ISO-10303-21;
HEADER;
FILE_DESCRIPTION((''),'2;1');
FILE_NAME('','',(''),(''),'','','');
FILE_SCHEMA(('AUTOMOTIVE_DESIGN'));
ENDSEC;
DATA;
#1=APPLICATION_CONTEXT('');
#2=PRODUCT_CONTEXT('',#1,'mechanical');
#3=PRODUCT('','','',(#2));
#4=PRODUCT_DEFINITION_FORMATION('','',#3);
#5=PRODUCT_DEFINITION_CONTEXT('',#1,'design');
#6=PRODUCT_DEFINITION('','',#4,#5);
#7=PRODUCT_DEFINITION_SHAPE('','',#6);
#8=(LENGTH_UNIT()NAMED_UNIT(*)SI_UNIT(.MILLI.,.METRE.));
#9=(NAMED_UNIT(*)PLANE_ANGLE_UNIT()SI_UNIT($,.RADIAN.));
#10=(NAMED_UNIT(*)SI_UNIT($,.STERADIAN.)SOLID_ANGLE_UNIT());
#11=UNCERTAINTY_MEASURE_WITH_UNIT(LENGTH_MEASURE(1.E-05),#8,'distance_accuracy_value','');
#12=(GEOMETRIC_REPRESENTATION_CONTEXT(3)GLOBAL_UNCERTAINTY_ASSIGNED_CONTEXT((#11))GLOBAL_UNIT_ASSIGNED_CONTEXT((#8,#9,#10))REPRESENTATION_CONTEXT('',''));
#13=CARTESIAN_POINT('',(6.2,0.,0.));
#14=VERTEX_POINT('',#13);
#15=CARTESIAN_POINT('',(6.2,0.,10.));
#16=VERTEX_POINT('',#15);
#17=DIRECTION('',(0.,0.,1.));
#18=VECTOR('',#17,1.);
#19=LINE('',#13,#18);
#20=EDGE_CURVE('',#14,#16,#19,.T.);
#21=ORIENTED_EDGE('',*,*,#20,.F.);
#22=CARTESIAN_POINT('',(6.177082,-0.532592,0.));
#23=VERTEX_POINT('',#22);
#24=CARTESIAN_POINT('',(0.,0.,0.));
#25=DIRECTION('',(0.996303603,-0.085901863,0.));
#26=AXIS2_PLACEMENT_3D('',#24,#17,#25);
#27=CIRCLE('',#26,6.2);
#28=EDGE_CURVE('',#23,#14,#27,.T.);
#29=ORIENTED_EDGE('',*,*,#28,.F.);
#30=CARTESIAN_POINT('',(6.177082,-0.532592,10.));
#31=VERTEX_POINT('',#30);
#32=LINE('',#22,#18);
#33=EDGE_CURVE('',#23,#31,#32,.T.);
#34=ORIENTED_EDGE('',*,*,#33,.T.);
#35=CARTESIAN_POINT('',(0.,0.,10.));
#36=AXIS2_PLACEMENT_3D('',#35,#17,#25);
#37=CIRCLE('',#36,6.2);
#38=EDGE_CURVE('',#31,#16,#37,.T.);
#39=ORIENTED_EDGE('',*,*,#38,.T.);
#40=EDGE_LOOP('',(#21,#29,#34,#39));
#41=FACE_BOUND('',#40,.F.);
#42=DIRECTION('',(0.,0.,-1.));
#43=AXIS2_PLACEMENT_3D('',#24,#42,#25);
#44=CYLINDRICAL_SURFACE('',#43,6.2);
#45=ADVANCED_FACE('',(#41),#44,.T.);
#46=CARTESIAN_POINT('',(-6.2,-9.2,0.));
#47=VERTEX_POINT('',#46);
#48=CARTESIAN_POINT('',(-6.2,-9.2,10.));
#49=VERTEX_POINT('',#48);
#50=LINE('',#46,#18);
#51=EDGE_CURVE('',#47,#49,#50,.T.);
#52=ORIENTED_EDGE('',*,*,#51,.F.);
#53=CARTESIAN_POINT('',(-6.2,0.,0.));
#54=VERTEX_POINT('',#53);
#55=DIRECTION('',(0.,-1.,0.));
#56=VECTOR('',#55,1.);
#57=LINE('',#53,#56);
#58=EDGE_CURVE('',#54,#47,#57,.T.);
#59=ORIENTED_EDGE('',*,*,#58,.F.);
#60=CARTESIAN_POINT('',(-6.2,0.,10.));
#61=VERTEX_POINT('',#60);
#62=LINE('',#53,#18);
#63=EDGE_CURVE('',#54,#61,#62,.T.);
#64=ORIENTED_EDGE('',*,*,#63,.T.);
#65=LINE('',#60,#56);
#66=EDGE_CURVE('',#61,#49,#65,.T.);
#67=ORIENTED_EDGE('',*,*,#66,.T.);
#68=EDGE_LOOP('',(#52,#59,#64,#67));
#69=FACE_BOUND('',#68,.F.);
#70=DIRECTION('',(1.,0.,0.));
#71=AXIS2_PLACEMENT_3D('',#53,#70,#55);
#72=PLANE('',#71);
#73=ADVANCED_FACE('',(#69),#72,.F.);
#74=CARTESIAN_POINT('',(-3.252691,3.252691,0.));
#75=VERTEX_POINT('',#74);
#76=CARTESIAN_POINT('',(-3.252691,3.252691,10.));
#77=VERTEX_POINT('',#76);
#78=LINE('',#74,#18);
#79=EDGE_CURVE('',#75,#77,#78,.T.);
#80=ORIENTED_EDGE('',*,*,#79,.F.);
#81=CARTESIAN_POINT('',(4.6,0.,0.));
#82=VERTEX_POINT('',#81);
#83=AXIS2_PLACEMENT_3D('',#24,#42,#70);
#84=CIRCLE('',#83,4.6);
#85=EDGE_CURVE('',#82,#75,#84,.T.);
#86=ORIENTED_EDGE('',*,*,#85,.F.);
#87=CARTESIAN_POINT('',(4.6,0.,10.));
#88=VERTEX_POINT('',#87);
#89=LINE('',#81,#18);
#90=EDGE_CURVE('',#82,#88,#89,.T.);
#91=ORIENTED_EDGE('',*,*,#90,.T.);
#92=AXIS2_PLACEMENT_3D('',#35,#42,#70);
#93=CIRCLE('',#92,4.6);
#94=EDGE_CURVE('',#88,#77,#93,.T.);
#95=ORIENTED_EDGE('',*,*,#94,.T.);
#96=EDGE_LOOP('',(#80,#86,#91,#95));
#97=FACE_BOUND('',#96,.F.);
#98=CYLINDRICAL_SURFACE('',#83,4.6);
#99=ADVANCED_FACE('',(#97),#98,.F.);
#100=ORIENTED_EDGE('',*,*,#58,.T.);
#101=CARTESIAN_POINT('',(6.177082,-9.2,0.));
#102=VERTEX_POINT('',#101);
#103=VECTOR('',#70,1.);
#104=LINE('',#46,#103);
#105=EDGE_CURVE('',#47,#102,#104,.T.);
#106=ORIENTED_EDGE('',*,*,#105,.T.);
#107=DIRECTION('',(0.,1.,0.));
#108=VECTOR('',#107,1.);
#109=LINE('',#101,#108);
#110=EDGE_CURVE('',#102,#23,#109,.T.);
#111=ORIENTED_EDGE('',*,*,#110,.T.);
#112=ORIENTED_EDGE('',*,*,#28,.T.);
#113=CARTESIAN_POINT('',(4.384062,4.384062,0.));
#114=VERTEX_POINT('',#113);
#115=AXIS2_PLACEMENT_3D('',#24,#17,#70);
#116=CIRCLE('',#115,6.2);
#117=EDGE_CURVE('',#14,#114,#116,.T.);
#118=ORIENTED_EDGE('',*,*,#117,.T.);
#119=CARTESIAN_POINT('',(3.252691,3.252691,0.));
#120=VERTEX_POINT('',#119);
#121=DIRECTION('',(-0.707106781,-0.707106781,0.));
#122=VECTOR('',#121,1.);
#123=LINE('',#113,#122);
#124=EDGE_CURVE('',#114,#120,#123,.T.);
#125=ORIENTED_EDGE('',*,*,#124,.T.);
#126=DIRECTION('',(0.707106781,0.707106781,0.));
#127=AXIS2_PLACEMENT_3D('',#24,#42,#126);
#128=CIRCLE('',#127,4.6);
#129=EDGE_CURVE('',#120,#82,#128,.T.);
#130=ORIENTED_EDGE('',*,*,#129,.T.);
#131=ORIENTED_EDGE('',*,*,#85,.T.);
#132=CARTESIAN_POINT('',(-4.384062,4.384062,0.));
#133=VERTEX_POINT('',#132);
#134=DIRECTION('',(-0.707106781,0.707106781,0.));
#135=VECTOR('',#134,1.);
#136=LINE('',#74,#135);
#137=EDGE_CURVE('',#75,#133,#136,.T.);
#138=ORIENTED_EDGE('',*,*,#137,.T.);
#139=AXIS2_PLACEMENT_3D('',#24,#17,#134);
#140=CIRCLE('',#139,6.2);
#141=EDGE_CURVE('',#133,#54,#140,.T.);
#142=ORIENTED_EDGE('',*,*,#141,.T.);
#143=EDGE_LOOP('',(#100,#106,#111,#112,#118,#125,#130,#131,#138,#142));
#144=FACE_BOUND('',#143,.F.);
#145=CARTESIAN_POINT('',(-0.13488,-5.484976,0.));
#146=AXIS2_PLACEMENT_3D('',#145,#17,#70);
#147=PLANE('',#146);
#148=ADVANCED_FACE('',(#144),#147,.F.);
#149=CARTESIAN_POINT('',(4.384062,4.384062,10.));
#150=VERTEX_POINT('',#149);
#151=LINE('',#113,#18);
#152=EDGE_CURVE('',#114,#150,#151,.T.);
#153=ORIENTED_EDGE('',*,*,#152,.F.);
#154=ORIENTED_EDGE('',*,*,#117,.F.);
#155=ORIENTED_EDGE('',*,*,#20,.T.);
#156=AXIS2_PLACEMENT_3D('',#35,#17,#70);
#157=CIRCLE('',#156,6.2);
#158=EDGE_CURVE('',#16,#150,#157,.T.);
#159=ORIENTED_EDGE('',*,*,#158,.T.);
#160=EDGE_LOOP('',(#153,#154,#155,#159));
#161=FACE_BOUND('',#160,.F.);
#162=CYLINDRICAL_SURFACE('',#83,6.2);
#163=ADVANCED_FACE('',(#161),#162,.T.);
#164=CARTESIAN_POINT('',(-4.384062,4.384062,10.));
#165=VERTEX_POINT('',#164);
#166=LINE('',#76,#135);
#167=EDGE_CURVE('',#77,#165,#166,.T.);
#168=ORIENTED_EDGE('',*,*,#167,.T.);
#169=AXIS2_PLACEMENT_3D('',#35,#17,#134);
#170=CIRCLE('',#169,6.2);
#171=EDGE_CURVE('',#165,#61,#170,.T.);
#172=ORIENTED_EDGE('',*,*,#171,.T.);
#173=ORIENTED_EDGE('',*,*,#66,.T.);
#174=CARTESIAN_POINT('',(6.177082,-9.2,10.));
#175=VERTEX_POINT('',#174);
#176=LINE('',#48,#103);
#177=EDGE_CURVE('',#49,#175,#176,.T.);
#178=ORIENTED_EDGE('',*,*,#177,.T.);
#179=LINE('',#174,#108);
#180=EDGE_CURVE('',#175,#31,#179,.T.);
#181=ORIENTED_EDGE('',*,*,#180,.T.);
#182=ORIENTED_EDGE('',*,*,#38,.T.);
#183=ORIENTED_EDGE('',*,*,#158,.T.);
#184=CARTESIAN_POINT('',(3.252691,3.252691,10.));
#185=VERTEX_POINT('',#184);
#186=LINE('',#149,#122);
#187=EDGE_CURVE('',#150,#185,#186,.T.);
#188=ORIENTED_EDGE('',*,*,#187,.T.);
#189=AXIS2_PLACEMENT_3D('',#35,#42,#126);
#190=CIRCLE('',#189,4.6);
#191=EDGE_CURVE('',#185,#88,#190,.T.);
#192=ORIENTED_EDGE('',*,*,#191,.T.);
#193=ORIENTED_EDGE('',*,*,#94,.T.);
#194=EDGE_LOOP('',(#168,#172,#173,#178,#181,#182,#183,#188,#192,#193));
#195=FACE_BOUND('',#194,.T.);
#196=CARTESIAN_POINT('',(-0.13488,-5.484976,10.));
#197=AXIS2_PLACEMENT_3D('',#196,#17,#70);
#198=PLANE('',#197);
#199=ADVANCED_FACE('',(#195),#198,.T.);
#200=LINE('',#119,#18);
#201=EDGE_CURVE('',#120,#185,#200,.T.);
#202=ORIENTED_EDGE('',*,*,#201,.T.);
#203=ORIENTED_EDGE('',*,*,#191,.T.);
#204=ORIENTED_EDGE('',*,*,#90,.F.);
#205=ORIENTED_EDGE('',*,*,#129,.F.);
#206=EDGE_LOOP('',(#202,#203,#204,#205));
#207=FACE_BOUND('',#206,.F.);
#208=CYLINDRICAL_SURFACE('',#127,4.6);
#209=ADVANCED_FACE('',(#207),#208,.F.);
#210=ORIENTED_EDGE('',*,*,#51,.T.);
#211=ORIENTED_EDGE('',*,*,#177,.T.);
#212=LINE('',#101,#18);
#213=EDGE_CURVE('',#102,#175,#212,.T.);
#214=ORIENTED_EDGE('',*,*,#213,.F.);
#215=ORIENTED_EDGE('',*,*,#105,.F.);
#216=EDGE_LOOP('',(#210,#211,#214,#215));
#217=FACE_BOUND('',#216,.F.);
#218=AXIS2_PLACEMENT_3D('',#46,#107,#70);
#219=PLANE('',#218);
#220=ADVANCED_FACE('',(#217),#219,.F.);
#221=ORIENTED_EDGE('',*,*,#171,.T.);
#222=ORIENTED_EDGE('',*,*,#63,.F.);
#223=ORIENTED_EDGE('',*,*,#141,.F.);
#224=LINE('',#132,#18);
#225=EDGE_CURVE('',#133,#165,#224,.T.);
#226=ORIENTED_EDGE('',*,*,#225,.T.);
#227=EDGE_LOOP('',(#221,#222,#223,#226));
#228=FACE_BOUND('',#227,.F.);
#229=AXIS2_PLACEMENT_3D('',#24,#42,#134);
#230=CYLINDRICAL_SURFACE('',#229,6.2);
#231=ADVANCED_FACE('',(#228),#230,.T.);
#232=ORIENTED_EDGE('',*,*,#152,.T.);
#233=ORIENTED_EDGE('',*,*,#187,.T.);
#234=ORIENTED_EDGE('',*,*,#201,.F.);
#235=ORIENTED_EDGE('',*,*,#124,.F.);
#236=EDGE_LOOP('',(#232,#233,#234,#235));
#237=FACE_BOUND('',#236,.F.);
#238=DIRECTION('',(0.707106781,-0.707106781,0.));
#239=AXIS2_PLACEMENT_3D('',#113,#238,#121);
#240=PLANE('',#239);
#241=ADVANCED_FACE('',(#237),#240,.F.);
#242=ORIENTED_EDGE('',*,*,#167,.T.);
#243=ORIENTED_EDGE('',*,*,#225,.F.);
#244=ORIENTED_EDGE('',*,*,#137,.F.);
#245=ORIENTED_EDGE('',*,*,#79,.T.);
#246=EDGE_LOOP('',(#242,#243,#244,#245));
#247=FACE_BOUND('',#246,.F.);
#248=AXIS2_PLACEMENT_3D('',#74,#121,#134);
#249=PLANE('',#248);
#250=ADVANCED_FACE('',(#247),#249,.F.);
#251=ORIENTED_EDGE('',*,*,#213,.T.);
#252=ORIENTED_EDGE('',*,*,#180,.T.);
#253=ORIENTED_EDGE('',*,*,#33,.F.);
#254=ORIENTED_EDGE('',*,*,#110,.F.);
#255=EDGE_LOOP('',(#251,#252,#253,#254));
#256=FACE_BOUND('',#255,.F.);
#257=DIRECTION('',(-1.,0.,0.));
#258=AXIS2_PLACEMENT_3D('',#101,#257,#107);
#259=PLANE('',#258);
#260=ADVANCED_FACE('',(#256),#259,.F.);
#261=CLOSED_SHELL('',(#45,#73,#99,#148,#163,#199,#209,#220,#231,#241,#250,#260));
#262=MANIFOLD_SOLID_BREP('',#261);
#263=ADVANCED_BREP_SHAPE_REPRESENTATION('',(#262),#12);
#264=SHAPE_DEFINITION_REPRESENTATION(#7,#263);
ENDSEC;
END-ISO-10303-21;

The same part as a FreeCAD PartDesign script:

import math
import FreeCAD as App
import Part
import Sketcher
from FreeCAD import Vector

doc = App.newDocument("Part")
body = doc.addObject("PartDesign::Body", "Body")

# Sketch on XY plane
sketch1 = body.newObject("Sketcher::SketchObject", "Sketch")
sketch1.AttachmentSupport = (doc.getObject("XY_Plane"), [""])
sketch1.MapMode = "FlatFace"
sketch1.addGeometry([
    Part.LineSegment(Vector(-6.2, 0, 0), Vector(-6.2, -9.2, 0)),  # 0
    Part.LineSegment(Vector(-6.2, -9.2, 0), Vector(6.2, -9.2, 0)),  # 1
    Part.LineSegment(Vector(6.2, -9.2, 0), Vector(6.2, -0.5, 0)),  # 2
    Part.ArcOfCircle(Part.Circle(Vector(0, 0, 0), Vector(0, 0, 1), 6.2), math.radians(-4.93), math.radians(0)),  # 3
    Part.ArcOfCircle(Part.Circle(Vector(0, 0, 0), Vector(0, 0, 1), 6.2), math.radians(0), math.radians(45)),  # 4
    Part.LineSegment(Vector(4.4, 4.4, 0), Vector(3.3, 3.3, 0)),  # 5
    Part.ArcOfCircle(Part.Circle(Vector(0, 0, 0), Vector(0, 0, 1), 4.6), math.radians(0), math.radians(45)),  # 6
    Part.ArcOfCircle(Part.Circle(Vector(0, 0, 0), Vector(0, 0, 1), 4.6), math.radians(135), math.radians(360)),  # 7
    Part.LineSegment(Vector(-3.3, 3.3, 0), Vector(-4.4, 4.4, 0)),  # 8
    Part.ArcOfCircle(Part.Circle(Vector(0, 0, 0), Vector(0, 0, 1), 6.2), math.radians(135), math.radians(180)),  # 9
], False)
sketch1.addConstraint([
    Sketcher.Constraint("Coincident", 0, 2, 1, 1),
    Sketcher.Constraint("Coincident", 1, 2, 2, 1),
    Sketcher.Constraint("Coincident", 2, 2, 3, 1),
    Sketcher.Constraint("Tangent", 3, 2, 4, 1),
    Sketcher.Constraint("Coincident", 4, 2, 5, 1),
    Sketcher.Constraint("Coincident", 5, 2, 6, 2),
    Sketcher.Constraint("Tangent", 6, 1, 7, 2),
    Sketcher.Constraint("Coincident", 7, 1, 8, 1),
    Sketcher.Constraint("Coincident", 8, 2, 9, 1),
    Sketcher.Constraint("Tangent", 9, 2, 0, 1),
    Sketcher.Constraint("Vertical", 0),
    Sketcher.Constraint("Horizontal", 1),
    Sketcher.Constraint("Vertical", 2),
    Sketcher.Constraint("Coincident", 3, 3, -1, 1),
    Sketcher.Constraint("Coincident", 6, 3, -1, 1),
    Sketcher.Constraint("Coincident", 9, 3, -1, 1),
    Sketcher.Constraint("Equal", 3, 4),
    Sketcher.Constraint("Equal", 6, 7),
    Sketcher.Constraint("Equal", 4, 9),
    Sketcher.Constraint("PointOnObject", 3, 2, -1),
    Sketcher.Constraint("PointOnObject", 6, 1, -1),
    Sketcher.Constraint("Perpendicular", 5, 8),
    Sketcher.Constraint("Horizontal", 5, 2, 7, 1),
    Sketcher.Constraint("Horizontal", 4, 2, 8, 2),
    Sketcher.Constraint("Radius", 3, 6.2),
    Sketcher.Constraint("Radius", 6, 4.6),
    Sketcher.Constraint("DistanceY", 0, 2, 0, 1, 9.2),
    Sketcher.Constraint("DistanceY", 2, 1, 2, 2, 8.667408),
    Sketcher.Constraint("DistanceX", -1, 1, 5, 2, 3.252691),
])
pad1 = body.newObject("PartDesign::Pad", "Pad")
pad1.Profile = sketch1
pad1.Length = 10

doc.recompute()
